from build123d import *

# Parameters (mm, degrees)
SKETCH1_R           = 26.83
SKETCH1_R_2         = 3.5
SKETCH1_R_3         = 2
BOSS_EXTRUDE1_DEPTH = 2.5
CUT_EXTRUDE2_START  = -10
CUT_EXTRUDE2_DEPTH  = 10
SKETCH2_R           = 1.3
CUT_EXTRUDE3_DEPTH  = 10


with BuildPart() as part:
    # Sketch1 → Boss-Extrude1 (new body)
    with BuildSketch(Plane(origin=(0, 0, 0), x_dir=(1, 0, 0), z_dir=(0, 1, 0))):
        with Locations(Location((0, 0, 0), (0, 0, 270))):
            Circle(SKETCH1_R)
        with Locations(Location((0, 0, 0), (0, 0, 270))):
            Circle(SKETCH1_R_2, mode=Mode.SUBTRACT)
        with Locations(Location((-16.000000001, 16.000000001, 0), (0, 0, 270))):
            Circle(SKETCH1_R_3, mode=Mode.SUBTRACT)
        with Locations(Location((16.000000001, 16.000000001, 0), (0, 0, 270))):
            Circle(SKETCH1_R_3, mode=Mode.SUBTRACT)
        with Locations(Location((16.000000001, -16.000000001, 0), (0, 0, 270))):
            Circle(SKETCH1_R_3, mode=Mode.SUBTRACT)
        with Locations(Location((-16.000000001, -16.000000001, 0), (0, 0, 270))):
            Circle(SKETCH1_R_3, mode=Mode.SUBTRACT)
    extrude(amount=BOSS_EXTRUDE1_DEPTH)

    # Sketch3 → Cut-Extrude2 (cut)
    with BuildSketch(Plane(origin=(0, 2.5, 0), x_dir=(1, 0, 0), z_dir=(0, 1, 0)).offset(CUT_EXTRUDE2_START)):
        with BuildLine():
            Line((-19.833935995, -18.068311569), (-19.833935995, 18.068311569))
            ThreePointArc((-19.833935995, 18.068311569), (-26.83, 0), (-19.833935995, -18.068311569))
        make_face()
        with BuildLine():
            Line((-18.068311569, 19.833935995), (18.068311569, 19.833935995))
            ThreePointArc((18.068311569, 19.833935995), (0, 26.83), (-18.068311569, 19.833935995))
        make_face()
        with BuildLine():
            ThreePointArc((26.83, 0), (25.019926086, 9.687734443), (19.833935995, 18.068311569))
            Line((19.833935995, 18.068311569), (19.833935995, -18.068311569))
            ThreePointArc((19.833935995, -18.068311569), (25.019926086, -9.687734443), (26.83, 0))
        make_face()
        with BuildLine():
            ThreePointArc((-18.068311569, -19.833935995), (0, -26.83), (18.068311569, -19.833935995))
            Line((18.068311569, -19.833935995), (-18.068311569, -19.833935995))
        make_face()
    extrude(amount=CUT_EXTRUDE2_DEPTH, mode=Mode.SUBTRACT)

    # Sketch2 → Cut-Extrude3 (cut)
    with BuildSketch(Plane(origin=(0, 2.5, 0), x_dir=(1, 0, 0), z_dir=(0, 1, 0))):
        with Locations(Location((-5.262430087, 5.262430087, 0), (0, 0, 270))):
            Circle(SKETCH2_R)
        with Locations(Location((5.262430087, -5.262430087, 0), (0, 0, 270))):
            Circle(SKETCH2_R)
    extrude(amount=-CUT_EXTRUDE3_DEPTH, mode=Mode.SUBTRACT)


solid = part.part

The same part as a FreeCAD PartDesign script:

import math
import FreeCAD as App
import Part
import Sketcher
from FreeCAD import Vector

doc = App.newDocument("Part")
body = doc.addObject("PartDesign::Body", "Body")

sketch1 = body.newObject("Sketcher::SketchObject", "Sketch")
sketch1.AttachmentSupport = (doc.getObject("XZ_Plane"), [""])
sketch1.MapMode = "FlatFace"
sketch1.addGeometry([
    Part.Circle(Vector(0, 0, 0), Vector(0, 0, 1), 26.8),
    Part.Circle(Vector(-16, -16, 0), Vector(0, 0, 1), 2),
    Part.Circle(Vector(-16, 16, 0), Vector(0, 0, 1), 2),
    Part.Circle(Vector(16, -16, 0), Vector(0, 0, 1), 2),
    Part.Circle(Vector(0, 0, 0), Vector(0, 0, 1), 3.5),
    Part.Circle(Vector(16, 16, 0), Vector(0, 0, 1), 2),
], False)
sketch1.addConstraint([
    Sketcher.Constraint("Coincident", 0, 3, -1, 1),
    Sketcher.Constraint("Coincident", 4, 3, -1, 1),
    Sketcher.Constraint("Equal", 1, 2),
    Sketcher.Constraint("Equal", 2, 3),
    Sketcher.Constraint("Equal", 3, 5),
    Sketcher.Constraint("Symmetric", 2, 3, 3, 3, -1, 1),
    Sketcher.Constraint("Symmetric", 1, 3, 5, 3, -1, 1),
    Sketcher.Constraint("Symmetric", 1, 3, 3, 3, -2),
    Sketcher.Constraint("Diameter", 1, 4.0),
    Sketcher.Constraint("Diameter", 4, 7.0),
    Sketcher.Constraint("Diameter", 0, 53.66),
    Sketcher.Constraint("DistanceX", 1, 3, -1, 1, 16.0),
    Sketcher.Constraint("DistanceY", 1, 3, -1, 1, 16.0),
])
pad1 = body.newObject("PartDesign::Pad", "Pad")
pad1.Profile = sketch1
pad1.Length = 2.5
pad1.Reversed = True

sketch2 = body.newObject("Sketcher::SketchObject", "Sketch001")
sketch2.AttachmentSupport = (doc.getObject("XZ_Plane"), [""])
sketch2.MapMode = "FlatFace"
sketch2.AttachmentOffset = App.Placement(Vector(0, 0, 7.5), App.Rotation())
sketch2.addGeometry([
    Part.LineSegment(Vector(-20, 18, 0), Vector(-20, -18, 0)),
    Part.ArcOfCircle(Part.Circle(Vector(0, 0, 0), Vector(0, 0, 1), 27), math.radians(138), math.radians(222)),
    Part.LineSegment(Vector(-18, -20, 0), Vector(18, -20, 0)),
    Part.ArcOfCircle(Part.Circle(Vector(0, 0, 0), Vector(0, 0, 1), 27), math.radians(-132), math.radians(-48)),
    Part.ArcOfCircle(Part.Circle(Vector(0, 0, 0), Vector(0, 0, 1), 27), math.radians(-42), math.radians(0)),
    Part.LineSegment(Vector(20, -18, 0), Vector(20, 18, 0)),
    Part.ArcOfCircle(Part.Circle(Vector(0, 0, 0), Vector(0, 0, 1), 27), math.radians(0), math.radians(42)),
    Part.ArcOfCircle(Part.Circle(Vector(0, 0, 0), Vector(0, 0, 1), 27), math.radians(48), math.radians(132)),
    Part.LineSegment(Vector(18, 20, 0), Vector(-18, 20, 0)),
], False)
sketch2.addConstraint([
    Sketcher.Constraint("Coincident", 0, 1, 1, 1),
    Sketcher.Constraint("Coincident", 1, 2, 0, 2),
    Sketcher.Constraint("Coincident", 2, 1, 3, 1),
    Sketcher.Constraint("Coincident", 3, 2, 2, 2),
    Sketcher.Constraint("Coincident", 4, 1, 5, 1),
    Sketcher.Constraint("Coincident", 5, 2, 6, 2),
    Sketcher.Constraint("Tangent", 6, 1, 4, 2),
    Sketcher.Constraint("Coincident", 7, 1, 8, 1),
    Sketcher.Constraint("Coincident", 8, 2, 7, 2),
    Sketcher.Constraint("Vertical", 0),
    Sketcher.Constraint("Horizontal", 2),
    Sketcher.Constraint("Vertical", 5),
    Sketcher.Constraint("Horizontal", 8),
    Sketcher.Constraint("Coincident", 1, 3, -1, 1),
    Sketcher.Constraint("Coincident", 3, 3, -1, 1),
    Sketcher.Constraint("Coincident", 4, 3, -1, 1),
    Sketcher.Constraint("Coincident", 7, 3, -1, 1),
    Sketcher.Constraint("Equal", 1, 3),
    Sketcher.Constraint("Equal", 3, 4),
    Sketcher.Constraint("Equal", 4, 6),
    Sketcher.Constraint("Equal", 6, 7),
    Sketcher.Constraint("PointOnObject", 6, 1, -1),
    Sketcher.Constraint("Horizontal", 1, 2, 4, 1),
    Sketcher.Constraint("Vertical", 3, 2, 7, 1),
    Sketcher.Constraint("Equal", 8, 0),
    Sketcher.Constraint("Radius", 1, 26.83),
    Sketcher.Constraint("DistanceX", 2, 1, 2, 2, 36.136623),
])
pocket1 = body.newObject("PartDesign::Pocket", "Pocket")
pocket1.Profile = sketch2
pocket1.Length = 10

sketch3 = body.newObject("Sketcher::SketchObject", "Sketch002")
sketch3.AttachmentSupport = (doc.getObject("XZ_Plane"), [""])
sketch3.MapMode = "FlatFace"
sketch3.AttachmentOffset = App.Placement(Vector(0, 0, -2.5), App.Rotation())
sketch3.addGeometry([
    Part.Circle(Vector(-5.3, -5.3, 0), Vector(0, 0, 1), 1.3),
    Part.Circle(Vector(5.3, 5.3, 0), Vector(0, 0, 1), 1.3),
], False)
sketch3.addConstraint([
    Sketcher.Constraint("Equal", 0, 1),
    Sketcher.Constraint("Symmetric", 0, 3, 1, 3, -1, 1),
    Sketcher.Constraint("Diameter", 0, 2.6),
    Sketcher.Constraint("DistanceX", 0, 3, -1, 1, 5.26243),
    Sketcher.Constraint("DistanceY", 0, 3, -1, 1, 5.26243),
])
pocket2 = body.newObject("PartDesign::Pocket", "Pocket001")
pocket2.Profile = sketch3
pocket2.Length = 10
pocket2.Reversed = True

doc.recompute()
